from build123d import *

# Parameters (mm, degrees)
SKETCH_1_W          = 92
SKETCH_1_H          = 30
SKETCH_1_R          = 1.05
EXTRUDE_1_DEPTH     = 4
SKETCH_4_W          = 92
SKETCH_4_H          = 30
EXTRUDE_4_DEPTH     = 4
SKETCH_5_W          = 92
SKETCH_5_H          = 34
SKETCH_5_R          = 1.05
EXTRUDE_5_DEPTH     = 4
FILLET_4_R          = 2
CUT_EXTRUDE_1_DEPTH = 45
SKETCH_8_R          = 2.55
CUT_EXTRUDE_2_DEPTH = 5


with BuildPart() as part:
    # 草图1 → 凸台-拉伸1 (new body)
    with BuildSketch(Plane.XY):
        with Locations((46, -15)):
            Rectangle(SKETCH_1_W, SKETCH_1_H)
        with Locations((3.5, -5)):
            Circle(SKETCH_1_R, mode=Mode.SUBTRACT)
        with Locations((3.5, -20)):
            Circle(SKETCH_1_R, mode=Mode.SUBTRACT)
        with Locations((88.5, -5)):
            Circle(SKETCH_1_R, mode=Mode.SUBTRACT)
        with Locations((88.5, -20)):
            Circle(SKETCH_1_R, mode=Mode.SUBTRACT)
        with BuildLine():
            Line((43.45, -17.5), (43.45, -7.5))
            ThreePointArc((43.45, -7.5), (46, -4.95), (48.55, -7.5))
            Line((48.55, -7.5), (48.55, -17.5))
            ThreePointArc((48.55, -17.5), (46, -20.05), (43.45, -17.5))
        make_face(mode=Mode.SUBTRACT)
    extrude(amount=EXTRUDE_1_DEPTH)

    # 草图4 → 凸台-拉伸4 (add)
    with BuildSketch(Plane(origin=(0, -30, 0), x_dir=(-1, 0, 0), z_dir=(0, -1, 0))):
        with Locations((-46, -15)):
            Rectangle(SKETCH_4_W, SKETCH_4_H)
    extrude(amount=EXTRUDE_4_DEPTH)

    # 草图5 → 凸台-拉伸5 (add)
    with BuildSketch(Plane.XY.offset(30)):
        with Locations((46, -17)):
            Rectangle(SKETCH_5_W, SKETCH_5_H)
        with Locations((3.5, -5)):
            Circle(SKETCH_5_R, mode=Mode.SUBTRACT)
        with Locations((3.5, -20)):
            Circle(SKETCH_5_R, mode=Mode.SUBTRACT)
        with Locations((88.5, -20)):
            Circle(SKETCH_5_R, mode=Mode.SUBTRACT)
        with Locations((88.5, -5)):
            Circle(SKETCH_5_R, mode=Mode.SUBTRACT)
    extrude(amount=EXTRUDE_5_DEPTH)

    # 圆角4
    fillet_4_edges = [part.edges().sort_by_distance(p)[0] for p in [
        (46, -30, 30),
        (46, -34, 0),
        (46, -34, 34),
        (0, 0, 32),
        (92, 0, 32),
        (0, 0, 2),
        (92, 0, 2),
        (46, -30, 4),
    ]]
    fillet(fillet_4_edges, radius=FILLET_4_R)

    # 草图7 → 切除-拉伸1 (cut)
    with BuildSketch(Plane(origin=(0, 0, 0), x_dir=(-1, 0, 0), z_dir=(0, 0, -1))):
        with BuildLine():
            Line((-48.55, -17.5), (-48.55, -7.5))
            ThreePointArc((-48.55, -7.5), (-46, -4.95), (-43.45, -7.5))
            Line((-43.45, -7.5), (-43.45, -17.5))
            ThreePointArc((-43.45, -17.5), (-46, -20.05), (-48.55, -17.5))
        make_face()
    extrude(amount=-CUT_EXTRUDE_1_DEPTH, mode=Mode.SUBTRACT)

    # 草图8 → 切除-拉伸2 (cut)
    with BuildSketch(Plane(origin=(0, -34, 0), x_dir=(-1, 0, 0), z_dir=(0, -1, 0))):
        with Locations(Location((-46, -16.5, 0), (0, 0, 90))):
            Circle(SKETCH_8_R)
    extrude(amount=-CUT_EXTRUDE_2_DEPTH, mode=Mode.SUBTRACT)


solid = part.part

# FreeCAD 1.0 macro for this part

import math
import FreeCAD as App
import Part
import Sketcher
from FreeCAD import Vector


def edges_at(feature, points):
    """Names of the edges that pass closest to the given points."""
    edges = feature.Shape.Edges
    near = lambda p: min(range(len(edges)), key=lambda i: edges[i].distToShape(Part.Vertex(*p))[0])
    return sorted({f"Edge{near(p) + 1}" for p in points})

doc = App.newDocument("Part")
body = doc.addObject("PartDesign::Body", "Body")

sketch1 = doc.addObject("Sketcher::SketchObject", "Sketch")
body.addObject(sketch1)
sketch1.AttachmentSupport = (doc.XY_Plane, [""])
sketch1.MapMode = "FlatFace"
sketch1.addGeometry(Part.LineSegment(Vector(0, 0, 0), Vector(0, -30, 0)), False)
sketch1.addGeometry(Part.LineSegment(Vector(0, -30, 0), Vector(92, -30, 0)), False)
sketch1.addGeometry(Part.LineSegment(Vector(92, -30, 0), Vector(92, 0, 0)), False)
sketch1.addGeometry(Part.LineSegment(Vector(92, 0, 0), Vector(0, 0, 0)), False)
sketch1.addGeometry(Part.Circle(Vector(3.5, -20, 0), Vector(0, 0, 1), 1.1), False)
sketch1.addGeometry(Part.Circle(Vector(88.5, -20, 0), Vector(0, 0, 1), 1.1), False)
sketch1.addGeometry(Part.Circle(Vector(3.5, -5, 0), Vector(0, 0, 1), 1.1), False)
sketch1.addGeometry(Part.ArcOfCircle(Part.Circle(Vector(46, -17.5, 0), Vector(0, 0, 1), 2.5), math.radians(180), math.radians(360)), False)
sketch1.addGeometry(Part.LineSegment(Vector(43.5, -17.5, 0), Vector(43.5, -7.5, 0)), False)
sketch1.addGeometry(Part.ArcOfCircle(Part.Circle(Vector(46, -7.5, 0), Vector(0, 0, 1), 2.5), math.radians(0), math.radians(180)), False)
sketch1.addGeometry(Part.LineSegment(Vector(48.5, -7.5, 0), Vector(48.5, -17.5, 0)), False)
sketch1.addGeometry(Part.Circle(Vector(88.5, -5, 0), Vector(0, 0, 1), 1.1), False)
sketch1.addConstraint(Sketcher.Constraint("Coincident", 0, 2, 1, 1))
sketch1.addConstraint(Sketcher.Constraint("Coincident", 1, 2, 2, 1))
sketch1.addConstraint(Sketcher.Constraint("Coincident", 2, 2, 3, 1))
sketch1.addConstraint(Sketcher.Constraint("Coincident", 3, 2, 0, 1))
sketch1.addConstraint(Sketcher.Constraint("Tangent", 7, 1, 8, 1))
sketch1.addConstraint(Sketcher.Constraint("Tangent", 8, 2, 9, 2))
sketch1.addConstraint(Sketcher.Constraint("Tangent", 9, 1, 10, 1))
sketch1.addConstraint(Sketcher.Constraint("Tangent", 10, 2, 7, 2))
sketch1.addConstraint(Sketcher.Constraint("Vertical", 0))
sketch1.addConstraint(Sketcher.Constraint("Horizontal", 1))
sketch1.addConstraint(Sketcher.Constraint("Vertical", 2))
sketch1.addConstraint(Sketcher.Constraint("Horizontal", 3))
sketch1.addConstraint(Sketcher.Constraint("Vertical", 8))
sketch1.addConstraint(Sketcher.Constraint("Vertical", 10))
sketch1.addConstraint(Sketcher.Constraint("Coincident", 3, 2, -1, 1))
sketch1.addConstraint(Sketcher.Constraint("Equal", 4, 5))
sketch1.addConstraint(Sketcher.Constraint("Equal", 5, 6))
sketch1.addConstraint(Sketcher.Constraint("Equal", 6, 11))
sketch1.addConstraint(Sketcher.Constraint("Horizontal", 4, 3, 5, 3))
sketch1.addConstraint(Sketcher.Constraint("Horizontal", 6, 3, 11, 3))
sketch1.addConstraint(Sketcher.Constraint("Vertical", 4, 3, 6, 3))
sketch1.addConstraint(Sketcher.Constraint("Vertical", 5, 3, 11, 3))
sketch1.addConstraint(Sketcher.Constraint("Diameter", 4, 2.1))
sketch1.addConstraint(Sketcher.Constraint("DistanceX", 1, 1, 1, 2, 92.0))
sketch1.addConstraint(Sketcher.Constraint("DistanceY", 0, 2, 0, 1, 30.0))
sketch1.addConstraint(Sketcher.Constraint("DistanceY", 8, 1, 8, 2, 10.0))
sketch1.addConstraint(Sketcher.Constraint("Radius", 7, 2.55))
sketch1.addConstraint(Sketcher.Constraint("DistanceY", 4, 3, -1, 1, 20.0))
sketch1.addConstraint(Sketcher.Constraint("DistanceY", 6, 3, -1, 1, 5.0))
sketch1.addConstraint(Sketcher.Constraint("DistanceX", -1, 1, 7, 3, 46.0))
sketch1.addConstraint(Sketcher.Constraint("DistanceX", 4, 3, 5, 3, 85.0))
sketch1.addConstraint(Sketcher.Constraint("DistanceX", -1, 1, 4, 3, 3.5))
sketch1.addConstraint(Sketcher.Constraint("DistanceY", 7, 3, -1, 1, 17.5))
pad1 = doc.addObject("PartDesign::Pad", "Pad")
body.addObject(pad1)
pad1.Profile = sketch1
pad1.Length = 4

sketch2 = doc.addObject("Sketcher::SketchObject", "Sketch001")
body.addObject(sketch2)
sketch2.AttachmentSupport = (doc.XZ_Plane, [""])
sketch2.MapMode = "FlatFace"
sketch2.AttachmentOffset = App.Placement(Vector(0, 0, 30), App.Rotation())
sketch2.addGeometry(Part.LineSegment(Vector(92, 0, 0), Vector(92, 30, 0)), False)
sketch2.addGeometry(Part.LineSegment(Vector(92, 30, 0), Vector(0, 30, 0)), False)
sketch2.addGeometry(Part.LineSegment(Vector(0, 30, 0), Vector(0, 0, 0)), False)
sketch2.addGeometry(Part.LineSegment(Vector(0, 0, 0), Vector(92, 0, 0)), False)
sketch2.addConstraint(Sketcher.Constraint("Coincident", 0, 2, 1, 1))
sketch2.addConstraint(Sketcher.Constraint("Coincident", 1, 2, 2, 1))
sketch2.addConstraint(Sketcher.Constraint("Coincident", 2, 2, 3, 1))
sketch2.addConstraint(Sketcher.Constraint("Coincident", 3, 2, 0, 1))
sketch2.addConstraint(Sketcher.Constraint("Vertical", 0))
sketch2.addConstraint(Sketcher.Constraint("Horizontal", 1))
sketch2.addConstraint(Sketcher.Constraint("Vertical", 2))
sketch2.addConstraint(Sketcher.Constraint("Horizontal", 3))
sketch2.addConstraint(Sketcher.Constraint("Coincident", 2, 2, -1, 1))
sketch2.addConstraint(Sketcher.Constraint("DistanceX", 1, 2, 1, 1, 92.0))
sketch2.addConstraint(Sketcher.Constraint("DistanceY", 0, 1, 0, 2, 30.0))
pad2 = doc.addObject("PartDesign::Pad", "Pad001")
body.addObject(pad2)
pad2.Profile = sketch2
pad2.Length = 4

sketch3 = doc.addObject("Sketcher::SketchObject", "Sketch002")
body.addObject(sketch3)
sketch3.AttachmentSupport = (doc.XY_Plane, [""])
sketch3.MapMode = "FlatFace"
sketch3.AttachmentOffset = App.Placement(Vector(0, 0, 30), App.Rotation())
sketch3.addGeometry(Part.LineSegment(Vector(0, 0, 0), Vector(0, -34, 0)), False)
sketch3.addGeometry(Part.LineSegment(Vector(0, -34, 0), Vector(92, -34, 0)), False)
sketch3.addGeometry(Part.LineSegment(Vector(92, -34, 0), Vector(92, 0, 0)), False)
sketch3.addGeometry(Part.LineSegment(Vector(92, 0, 0), Vector(0, 0, 0)), False)
sketch3.addGeometry(Part.Circle(Vector(3.5, -20, 0), Vector(0, 0, 1), 1.1), False)
sketch3.addGeometry(Part.Circle(Vector(88.5, -20, 0), Vector(0, 0, 1), 1.1), False)
sketch3.addGeometry(Part.Circle(Vector(3.5, -5, 0), Vector(0, 0, 1), 1.1), False)
sketch3.addGeometry(Part.Circle(Vector(88.5, -5, 0), Vector(0, 0, 1), 1.1), False)
sketch3.addConstraint(Sketcher.Constraint("Coincident", 0, 2, 1, 1))
sketch3.addConstraint(Sketcher.Constraint("Coincident", 1, 2, 2, 1))
sketch3.addConstraint(Sketcher.Constraint("Coincident", 2, 2, 3, 1))
sketch3.addConstraint(Sketcher.Constraint("Coincident", 3, 2, 0, 1))
sketch3.addConstraint(Sketcher.Constraint("Vertical", 0))
sketch3.addConstraint(Sketcher.Constraint("Horizontal", 1))
sketch3.addConstraint(Sketcher.Constraint("Vertical", 2))
sketch3.addConstraint(Sketcher.Constraint("Horizontal", 3))
sketch3.addConstraint(Sketcher.Constraint("Coincident", 3, 2, -1, 1))
sketch3.addConstraint(Sketcher.Constraint("Equal", 4, 5))
sketch3.addConstraint(Sketcher.Constraint("Equal", 5, 6))
sketch3.addConstraint(Sketcher.Constraint("Equal", 6, 7))
sketch3.addConstraint(Sketcher.Constraint("Horizontal", 4, 3, 5, 3))
sketch3.addConstraint(Sketcher.Constraint("Horizontal", 6, 3, 7, 3))
sketch3.addConstraint(Sketcher.Constraint("Vertical", 4, 3, 6, 3))
sketch3.addConstraint(Sketcher.Constraint("Vertical", 5, 3, 7, 3))
sketch3.addConstraint(Sketcher.Constraint("Diameter", 4, 2.1))
sketch3.addConstraint(Sketcher.Constraint("DistanceX", 1, 1, 1, 2, 92.0))
sketch3.addConstraint(Sketcher.Constraint("DistanceY", 0, 2, 0, 1, 34.0))
sketch3.addConstraint(Sketcher.Constraint("DistanceY", 4, 3, -1, 1, 20.0))
sketch3.addConstraint(Sketcher.Constraint("DistanceY", 6, 3, -1, 1, 5.0))
sketch3.addConstraint(Sketcher.Constraint("DistanceX", 4, 3, 5, 3, 85.0))
sketch3.addConstraint(Sketcher.Constraint("DistanceX", -1, 1, 4, 3, 3.5))
pad3 = doc.addObject("PartDesign::Pad", "Pad002")
body.addObject(pad3)
pad3.Profile = sketch3
pad3.Length = 4
doc.recompute()

fillet = doc.addObject("PartDesign::Fillet", "Fillet")
body.addObject(fillet)
fillet.Base = (pad3, edges_at(pad3, [
    (46, -30, 30),
    (46, -34, 0),
    (46, -34, 34),
    (0, 0, 32),
    (92, 0, 32),
    (0, 0, 2),
    (92, 0, 2),
    (46, -30, 4),
]))
fillet.Radius = 2

sketch4 = doc.addObject("Sketcher::SketchObject", "Sketch003")
body.addObject(sketch4)
sketch4.AttachmentSupport = (doc.XY_Plane, [""])
sketch4.MapMode = "FlatFace"
sketch4.addGeometry(Part.LineSegment(Vector(48.5, -7.5, 0), Vector(48.5, -17.5, 0)), False)
sketch4.addGeometry(Part.ArcOfCircle(Part.Circle(Vector(46, -17.5, 0), Vector(0, 0, 1), 2.5), math.radians(180), math.radians(360)), False)
sketch4.addGeometry(Part.LineSegment(Vector(43.5, -17.5, 0), Vector(43.5, -7.5, 0)), False)
sketch4.addGeometry(Part.ArcOfCircle(Part.Circle(Vector(46, -7.5, 0), Vector(0, 0, 1), 2.5), math.radians(0), math.radians(180)), False)
sketch4.addConstraint(Sketcher.Constraint("Tangent", 0, 2, 1, 2))
sketch4.addConstraint(Sketcher.Constraint("Tangent", 1, 1, 2, 1))
sketch4.addConstraint(Sketcher.Constraint("Tangent", 2, 2, 3, 2))
sketch4.addConstraint(Sketcher.Constraint("Tangent", 3, 1, 0, 1))
sketch4.addConstraint(Sketcher.Constraint("Vertical", 0))
sketch4.addConstraint(Sketcher.Constraint("Vertical", 2))
sketch4.addConstraint(Sketcher.Constraint("DistanceY", 0, 2, 0, 1, 10.0))
sketch4.addConstraint(Sketcher.Constraint("Radius", 1, 2.55))
sketch4.addConstraint(Sketcher.Constraint("DistanceX", -1, 1, 1, 3, 46.0))
sketch4.addConstraint(Sketcher.Constraint("DistanceY", 1, 3, -1, 1, 17.5))
pocket1 = doc.addObject("PartDesign::Pocket", "Pocket")
body.addObject(pocket1)
pocket1.Profile = sketch4
pocket1.Length = 45
pocket1.Reversed = True

sketch5 = doc.addObject("Sketcher::SketchObject", "Sketch004")
body.addObject(sketch5)
sketch5.AttachmentSupport = (doc.XZ_Plane, [""])
sketch5.MapMode = "FlatFace"
sketch5.AttachmentOffset = App.Placement(Vector(0, 0, 34), App.Rotation())
sketch5.addGeometry(Part.Circle(Vector(46, 16.5, 0), Vector(0, 0, 1), 2.5), False)
sketch5.addConstraint(Sketcher.Constraint("Diameter", 0, 5.1))
sketch5.addConstraint(Sketcher.Constraint("DistanceX", -1, 1, 0, 3, 46.0))
sketch5.addConstraint(Sketcher.Constraint("DistanceY", -1, 1, 0, 3, 16.5))
pocket2 = doc.addObject("PartDesign::Pocket", "Pocket001")
body.addObject(pocket2)
pocket2.Profile = sketch5
pocket2.Length = 5

doc.recompute()
